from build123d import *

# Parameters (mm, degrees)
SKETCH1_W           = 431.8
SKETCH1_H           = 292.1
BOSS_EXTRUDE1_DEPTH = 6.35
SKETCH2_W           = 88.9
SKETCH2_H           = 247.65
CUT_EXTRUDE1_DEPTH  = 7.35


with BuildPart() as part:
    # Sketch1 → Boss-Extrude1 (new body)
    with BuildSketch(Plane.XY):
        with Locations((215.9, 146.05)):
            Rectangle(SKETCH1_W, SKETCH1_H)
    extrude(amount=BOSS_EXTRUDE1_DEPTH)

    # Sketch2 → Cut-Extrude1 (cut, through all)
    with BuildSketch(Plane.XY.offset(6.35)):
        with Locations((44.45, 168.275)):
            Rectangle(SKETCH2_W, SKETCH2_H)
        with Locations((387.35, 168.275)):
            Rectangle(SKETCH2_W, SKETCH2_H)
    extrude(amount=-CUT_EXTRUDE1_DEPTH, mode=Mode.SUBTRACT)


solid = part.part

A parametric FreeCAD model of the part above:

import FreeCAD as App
import Part
import Sketcher
Q = App.Units.Quantity

doc = App.newDocument("Part")
body = doc.addObject("PartDesign::Body", "Body")

# Sketch on XY plane
sketch1 = doc.addObject("Sketcher::SketchObject", "Sketch")
body.addObject(sketch1)
sketch1.AttachmentSupport = (doc.XY_Plane, [""])
sketch1.MapMode = "FlatFace"
sketch1.addGeometry(Part.LineSegment(App.Vector(0, 292.1, 0), App.Vector(0, 0, 0)), False)
sketch1.addGeometry(Part.LineSegment(App.Vector(0, 0, 0), App.Vector(431.8, 0, 0)), False)
sketch1.addGeometry(Part.LineSegment(App.Vector(431.8, 0, 0), App.Vector(431.8, 292.1, 0)), False)
sketch1.addGeometry(Part.LineSegment(App.Vector(431.8, 292.1, 0), App.Vector(0, 292.1, 0)), False)
sketch1.addConstraint(Sketcher.Constraint("Coincident", 0, 2, 1, 1))
sketch1.addConstraint(Sketcher.Constraint("Coincident", 1, 2, 2, 1))
sketch1.addConstraint(Sketcher.Constraint("Coincident", 2, 2, 3, 1))
sketch1.addConstraint(Sketcher.Constraint("Coincident", 3, 2, 0, 1))
sketch1.addConstraint(Sketcher.Constraint("Vertical", 0))
sketch1.addConstraint(Sketcher.Constraint("Horizontal", 1))
sketch1.addConstraint(Sketcher.Constraint("Vertical", 2))
sketch1.addConstraint(Sketcher.Constraint("Horizontal", 3))
sketch1.addConstraint(Sketcher.Constraint("Coincident", 0, 2, -1, 1))
sketch1.addConstraint(Sketcher.Constraint("DistanceX", 1, 1, 1, 2, Q("17 in")))
sketch1.addConstraint(Sketcher.Constraint("DistanceY", 0, 2, 0, 1, Q("11.5 in")))
pad1 = doc.addObject("PartDesign::Pad", "Pad")
body.addObject(pad1)
pad1.Profile = sketch1
pad1.Length = Q("0.25 in")

# Sketch on XY plane
sketch2 = doc.addObject("Sketcher::SketchObject", "Sketch001")
body.addObject(sketch2)
sketch2.AttachmentSupport = (doc.XY_Plane, [""])
sketch2.MapMode = "FlatFace"
sketch2.AttachmentOffset = App.Placement(App.Vector(0, 0, 0.25 * 25.4), App.Rotation())
sketch2.addGeometry(Part.LineSegment(App.Vector(0, 292.1, 0), App.Vector(0, 44.45, 0)), False)
sketch2.addGeometry(Part.LineSegment(App.Vector(0, 44.45, 0), App.Vector(88.9, 44.45, 0)), False)
sketch2.addGeometry(Part.LineSegment(App.Vector(88.9, 44.45, 0), App.Vector(88.9, 292.1, 0)), False)
sketch2.addGeometry(Part.LineSegment(App.Vector(88.9, 292.1, 0), App.Vector(0, 292.1, 0)), False)
sketch2.addGeometry(Part.LineSegment(App.Vector(342.9, 292.1, 0), App.Vector(342.9, 44.45, 0)), False)
sketch2.addGeometry(Part.LineSegment(App.Vector(342.9, 44.45, 0), App.Vector(431.8, 44.45, 0)), False)
sketch2.addGeometry(Part.LineSegment(App.Vector(431.8, 44.45, 0), App.Vector(431.8, 292.1, 0)), False)
sketch2.addGeometry(Part.LineSegment(App.Vector(431.8, 292.1, 0), App.Vector(342.9, 292.1, 0)), False)
sketch2.addConstraint(Sketcher.Constraint("Coincident", 0, 2, 1, 1))
sketch2.addConstraint(Sketcher.Constraint("Coincident", 1, 2, 2, 1))
sketch2.addConstraint(Sketcher.Constraint("Coincident", 2, 2, 3, 1))
sketch2.addConstraint(Sketcher.Constraint("Coincident", 3, 2, 0, 1))
sketch2.addConstraint(Sketcher.Constraint("Coincident", 4, 2, 5, 1))
sketch2.addConstraint(Sketcher.Constraint("Coincident", 5, 2, 6, 1))
sketch2.addConstraint(Sketcher.Constraint("Coincident", 6, 2, 7, 1))
sketch2.addConstraint(Sketcher.Constraint("Coincident", 7, 2, 4, 1))
sketch2.addConstraint(Sketcher.Constraint("Vertical", 0))
sketch2.addConstraint(Sketcher.Constraint("Horizontal", 1))
sketch2.addConstraint(Sketcher.Constraint("Vertical", 2))
sketch2.addConstraint(Sketcher.Constraint("Horizontal", 3))
sketch2.addConstraint(Sketcher.Constraint("Vertical", 4))
sketch2.addConstraint(Sketcher.Constraint("Horizontal", 5))
sketch2.addConstraint(Sketcher.Constraint("Vertical", 6))
sketch2.addConstraint(Sketcher.Constraint("Horizontal", 7))
sketch2.addConstraint(Sketcher.Constraint("PointOnObject", 0, 2, -2))
sketch2.addConstraint(Sketcher.Constraint("Horizontal", 1, 2, 4, 2))
sketch2.addConstraint(Sketcher.Constraint("Horizontal", 3, 2, 6, 2))
sketch2.addConstraint(Sketcher.Constraint("Equal", 3, 5))
sketch2.addConstraint(Sketcher.Constraint("DistanceX", 1, 1, 1, 2, Q("3.5 in")))
sketch2.addConstraint(Sketcher.Constraint("DistanceX", -1, 1, 5, 2, Q("17 in")))
sketch2.addConstraint(Sketcher.Constraint("DistanceY", 0, 2, 0, 1, Q("9.75 in")))
sketch2.addConstraint(Sketcher.Constraint("DistanceY", -1, 1, 2, 2, Q("11.5 in")))
pocket1 = doc.addObject("PartDesign::Pocket", "Pocket")
body.addObject(pocket1)
pocket1.Profile = sketch2
pocket1.Type = "ThroughAll"

doc.recompute()
